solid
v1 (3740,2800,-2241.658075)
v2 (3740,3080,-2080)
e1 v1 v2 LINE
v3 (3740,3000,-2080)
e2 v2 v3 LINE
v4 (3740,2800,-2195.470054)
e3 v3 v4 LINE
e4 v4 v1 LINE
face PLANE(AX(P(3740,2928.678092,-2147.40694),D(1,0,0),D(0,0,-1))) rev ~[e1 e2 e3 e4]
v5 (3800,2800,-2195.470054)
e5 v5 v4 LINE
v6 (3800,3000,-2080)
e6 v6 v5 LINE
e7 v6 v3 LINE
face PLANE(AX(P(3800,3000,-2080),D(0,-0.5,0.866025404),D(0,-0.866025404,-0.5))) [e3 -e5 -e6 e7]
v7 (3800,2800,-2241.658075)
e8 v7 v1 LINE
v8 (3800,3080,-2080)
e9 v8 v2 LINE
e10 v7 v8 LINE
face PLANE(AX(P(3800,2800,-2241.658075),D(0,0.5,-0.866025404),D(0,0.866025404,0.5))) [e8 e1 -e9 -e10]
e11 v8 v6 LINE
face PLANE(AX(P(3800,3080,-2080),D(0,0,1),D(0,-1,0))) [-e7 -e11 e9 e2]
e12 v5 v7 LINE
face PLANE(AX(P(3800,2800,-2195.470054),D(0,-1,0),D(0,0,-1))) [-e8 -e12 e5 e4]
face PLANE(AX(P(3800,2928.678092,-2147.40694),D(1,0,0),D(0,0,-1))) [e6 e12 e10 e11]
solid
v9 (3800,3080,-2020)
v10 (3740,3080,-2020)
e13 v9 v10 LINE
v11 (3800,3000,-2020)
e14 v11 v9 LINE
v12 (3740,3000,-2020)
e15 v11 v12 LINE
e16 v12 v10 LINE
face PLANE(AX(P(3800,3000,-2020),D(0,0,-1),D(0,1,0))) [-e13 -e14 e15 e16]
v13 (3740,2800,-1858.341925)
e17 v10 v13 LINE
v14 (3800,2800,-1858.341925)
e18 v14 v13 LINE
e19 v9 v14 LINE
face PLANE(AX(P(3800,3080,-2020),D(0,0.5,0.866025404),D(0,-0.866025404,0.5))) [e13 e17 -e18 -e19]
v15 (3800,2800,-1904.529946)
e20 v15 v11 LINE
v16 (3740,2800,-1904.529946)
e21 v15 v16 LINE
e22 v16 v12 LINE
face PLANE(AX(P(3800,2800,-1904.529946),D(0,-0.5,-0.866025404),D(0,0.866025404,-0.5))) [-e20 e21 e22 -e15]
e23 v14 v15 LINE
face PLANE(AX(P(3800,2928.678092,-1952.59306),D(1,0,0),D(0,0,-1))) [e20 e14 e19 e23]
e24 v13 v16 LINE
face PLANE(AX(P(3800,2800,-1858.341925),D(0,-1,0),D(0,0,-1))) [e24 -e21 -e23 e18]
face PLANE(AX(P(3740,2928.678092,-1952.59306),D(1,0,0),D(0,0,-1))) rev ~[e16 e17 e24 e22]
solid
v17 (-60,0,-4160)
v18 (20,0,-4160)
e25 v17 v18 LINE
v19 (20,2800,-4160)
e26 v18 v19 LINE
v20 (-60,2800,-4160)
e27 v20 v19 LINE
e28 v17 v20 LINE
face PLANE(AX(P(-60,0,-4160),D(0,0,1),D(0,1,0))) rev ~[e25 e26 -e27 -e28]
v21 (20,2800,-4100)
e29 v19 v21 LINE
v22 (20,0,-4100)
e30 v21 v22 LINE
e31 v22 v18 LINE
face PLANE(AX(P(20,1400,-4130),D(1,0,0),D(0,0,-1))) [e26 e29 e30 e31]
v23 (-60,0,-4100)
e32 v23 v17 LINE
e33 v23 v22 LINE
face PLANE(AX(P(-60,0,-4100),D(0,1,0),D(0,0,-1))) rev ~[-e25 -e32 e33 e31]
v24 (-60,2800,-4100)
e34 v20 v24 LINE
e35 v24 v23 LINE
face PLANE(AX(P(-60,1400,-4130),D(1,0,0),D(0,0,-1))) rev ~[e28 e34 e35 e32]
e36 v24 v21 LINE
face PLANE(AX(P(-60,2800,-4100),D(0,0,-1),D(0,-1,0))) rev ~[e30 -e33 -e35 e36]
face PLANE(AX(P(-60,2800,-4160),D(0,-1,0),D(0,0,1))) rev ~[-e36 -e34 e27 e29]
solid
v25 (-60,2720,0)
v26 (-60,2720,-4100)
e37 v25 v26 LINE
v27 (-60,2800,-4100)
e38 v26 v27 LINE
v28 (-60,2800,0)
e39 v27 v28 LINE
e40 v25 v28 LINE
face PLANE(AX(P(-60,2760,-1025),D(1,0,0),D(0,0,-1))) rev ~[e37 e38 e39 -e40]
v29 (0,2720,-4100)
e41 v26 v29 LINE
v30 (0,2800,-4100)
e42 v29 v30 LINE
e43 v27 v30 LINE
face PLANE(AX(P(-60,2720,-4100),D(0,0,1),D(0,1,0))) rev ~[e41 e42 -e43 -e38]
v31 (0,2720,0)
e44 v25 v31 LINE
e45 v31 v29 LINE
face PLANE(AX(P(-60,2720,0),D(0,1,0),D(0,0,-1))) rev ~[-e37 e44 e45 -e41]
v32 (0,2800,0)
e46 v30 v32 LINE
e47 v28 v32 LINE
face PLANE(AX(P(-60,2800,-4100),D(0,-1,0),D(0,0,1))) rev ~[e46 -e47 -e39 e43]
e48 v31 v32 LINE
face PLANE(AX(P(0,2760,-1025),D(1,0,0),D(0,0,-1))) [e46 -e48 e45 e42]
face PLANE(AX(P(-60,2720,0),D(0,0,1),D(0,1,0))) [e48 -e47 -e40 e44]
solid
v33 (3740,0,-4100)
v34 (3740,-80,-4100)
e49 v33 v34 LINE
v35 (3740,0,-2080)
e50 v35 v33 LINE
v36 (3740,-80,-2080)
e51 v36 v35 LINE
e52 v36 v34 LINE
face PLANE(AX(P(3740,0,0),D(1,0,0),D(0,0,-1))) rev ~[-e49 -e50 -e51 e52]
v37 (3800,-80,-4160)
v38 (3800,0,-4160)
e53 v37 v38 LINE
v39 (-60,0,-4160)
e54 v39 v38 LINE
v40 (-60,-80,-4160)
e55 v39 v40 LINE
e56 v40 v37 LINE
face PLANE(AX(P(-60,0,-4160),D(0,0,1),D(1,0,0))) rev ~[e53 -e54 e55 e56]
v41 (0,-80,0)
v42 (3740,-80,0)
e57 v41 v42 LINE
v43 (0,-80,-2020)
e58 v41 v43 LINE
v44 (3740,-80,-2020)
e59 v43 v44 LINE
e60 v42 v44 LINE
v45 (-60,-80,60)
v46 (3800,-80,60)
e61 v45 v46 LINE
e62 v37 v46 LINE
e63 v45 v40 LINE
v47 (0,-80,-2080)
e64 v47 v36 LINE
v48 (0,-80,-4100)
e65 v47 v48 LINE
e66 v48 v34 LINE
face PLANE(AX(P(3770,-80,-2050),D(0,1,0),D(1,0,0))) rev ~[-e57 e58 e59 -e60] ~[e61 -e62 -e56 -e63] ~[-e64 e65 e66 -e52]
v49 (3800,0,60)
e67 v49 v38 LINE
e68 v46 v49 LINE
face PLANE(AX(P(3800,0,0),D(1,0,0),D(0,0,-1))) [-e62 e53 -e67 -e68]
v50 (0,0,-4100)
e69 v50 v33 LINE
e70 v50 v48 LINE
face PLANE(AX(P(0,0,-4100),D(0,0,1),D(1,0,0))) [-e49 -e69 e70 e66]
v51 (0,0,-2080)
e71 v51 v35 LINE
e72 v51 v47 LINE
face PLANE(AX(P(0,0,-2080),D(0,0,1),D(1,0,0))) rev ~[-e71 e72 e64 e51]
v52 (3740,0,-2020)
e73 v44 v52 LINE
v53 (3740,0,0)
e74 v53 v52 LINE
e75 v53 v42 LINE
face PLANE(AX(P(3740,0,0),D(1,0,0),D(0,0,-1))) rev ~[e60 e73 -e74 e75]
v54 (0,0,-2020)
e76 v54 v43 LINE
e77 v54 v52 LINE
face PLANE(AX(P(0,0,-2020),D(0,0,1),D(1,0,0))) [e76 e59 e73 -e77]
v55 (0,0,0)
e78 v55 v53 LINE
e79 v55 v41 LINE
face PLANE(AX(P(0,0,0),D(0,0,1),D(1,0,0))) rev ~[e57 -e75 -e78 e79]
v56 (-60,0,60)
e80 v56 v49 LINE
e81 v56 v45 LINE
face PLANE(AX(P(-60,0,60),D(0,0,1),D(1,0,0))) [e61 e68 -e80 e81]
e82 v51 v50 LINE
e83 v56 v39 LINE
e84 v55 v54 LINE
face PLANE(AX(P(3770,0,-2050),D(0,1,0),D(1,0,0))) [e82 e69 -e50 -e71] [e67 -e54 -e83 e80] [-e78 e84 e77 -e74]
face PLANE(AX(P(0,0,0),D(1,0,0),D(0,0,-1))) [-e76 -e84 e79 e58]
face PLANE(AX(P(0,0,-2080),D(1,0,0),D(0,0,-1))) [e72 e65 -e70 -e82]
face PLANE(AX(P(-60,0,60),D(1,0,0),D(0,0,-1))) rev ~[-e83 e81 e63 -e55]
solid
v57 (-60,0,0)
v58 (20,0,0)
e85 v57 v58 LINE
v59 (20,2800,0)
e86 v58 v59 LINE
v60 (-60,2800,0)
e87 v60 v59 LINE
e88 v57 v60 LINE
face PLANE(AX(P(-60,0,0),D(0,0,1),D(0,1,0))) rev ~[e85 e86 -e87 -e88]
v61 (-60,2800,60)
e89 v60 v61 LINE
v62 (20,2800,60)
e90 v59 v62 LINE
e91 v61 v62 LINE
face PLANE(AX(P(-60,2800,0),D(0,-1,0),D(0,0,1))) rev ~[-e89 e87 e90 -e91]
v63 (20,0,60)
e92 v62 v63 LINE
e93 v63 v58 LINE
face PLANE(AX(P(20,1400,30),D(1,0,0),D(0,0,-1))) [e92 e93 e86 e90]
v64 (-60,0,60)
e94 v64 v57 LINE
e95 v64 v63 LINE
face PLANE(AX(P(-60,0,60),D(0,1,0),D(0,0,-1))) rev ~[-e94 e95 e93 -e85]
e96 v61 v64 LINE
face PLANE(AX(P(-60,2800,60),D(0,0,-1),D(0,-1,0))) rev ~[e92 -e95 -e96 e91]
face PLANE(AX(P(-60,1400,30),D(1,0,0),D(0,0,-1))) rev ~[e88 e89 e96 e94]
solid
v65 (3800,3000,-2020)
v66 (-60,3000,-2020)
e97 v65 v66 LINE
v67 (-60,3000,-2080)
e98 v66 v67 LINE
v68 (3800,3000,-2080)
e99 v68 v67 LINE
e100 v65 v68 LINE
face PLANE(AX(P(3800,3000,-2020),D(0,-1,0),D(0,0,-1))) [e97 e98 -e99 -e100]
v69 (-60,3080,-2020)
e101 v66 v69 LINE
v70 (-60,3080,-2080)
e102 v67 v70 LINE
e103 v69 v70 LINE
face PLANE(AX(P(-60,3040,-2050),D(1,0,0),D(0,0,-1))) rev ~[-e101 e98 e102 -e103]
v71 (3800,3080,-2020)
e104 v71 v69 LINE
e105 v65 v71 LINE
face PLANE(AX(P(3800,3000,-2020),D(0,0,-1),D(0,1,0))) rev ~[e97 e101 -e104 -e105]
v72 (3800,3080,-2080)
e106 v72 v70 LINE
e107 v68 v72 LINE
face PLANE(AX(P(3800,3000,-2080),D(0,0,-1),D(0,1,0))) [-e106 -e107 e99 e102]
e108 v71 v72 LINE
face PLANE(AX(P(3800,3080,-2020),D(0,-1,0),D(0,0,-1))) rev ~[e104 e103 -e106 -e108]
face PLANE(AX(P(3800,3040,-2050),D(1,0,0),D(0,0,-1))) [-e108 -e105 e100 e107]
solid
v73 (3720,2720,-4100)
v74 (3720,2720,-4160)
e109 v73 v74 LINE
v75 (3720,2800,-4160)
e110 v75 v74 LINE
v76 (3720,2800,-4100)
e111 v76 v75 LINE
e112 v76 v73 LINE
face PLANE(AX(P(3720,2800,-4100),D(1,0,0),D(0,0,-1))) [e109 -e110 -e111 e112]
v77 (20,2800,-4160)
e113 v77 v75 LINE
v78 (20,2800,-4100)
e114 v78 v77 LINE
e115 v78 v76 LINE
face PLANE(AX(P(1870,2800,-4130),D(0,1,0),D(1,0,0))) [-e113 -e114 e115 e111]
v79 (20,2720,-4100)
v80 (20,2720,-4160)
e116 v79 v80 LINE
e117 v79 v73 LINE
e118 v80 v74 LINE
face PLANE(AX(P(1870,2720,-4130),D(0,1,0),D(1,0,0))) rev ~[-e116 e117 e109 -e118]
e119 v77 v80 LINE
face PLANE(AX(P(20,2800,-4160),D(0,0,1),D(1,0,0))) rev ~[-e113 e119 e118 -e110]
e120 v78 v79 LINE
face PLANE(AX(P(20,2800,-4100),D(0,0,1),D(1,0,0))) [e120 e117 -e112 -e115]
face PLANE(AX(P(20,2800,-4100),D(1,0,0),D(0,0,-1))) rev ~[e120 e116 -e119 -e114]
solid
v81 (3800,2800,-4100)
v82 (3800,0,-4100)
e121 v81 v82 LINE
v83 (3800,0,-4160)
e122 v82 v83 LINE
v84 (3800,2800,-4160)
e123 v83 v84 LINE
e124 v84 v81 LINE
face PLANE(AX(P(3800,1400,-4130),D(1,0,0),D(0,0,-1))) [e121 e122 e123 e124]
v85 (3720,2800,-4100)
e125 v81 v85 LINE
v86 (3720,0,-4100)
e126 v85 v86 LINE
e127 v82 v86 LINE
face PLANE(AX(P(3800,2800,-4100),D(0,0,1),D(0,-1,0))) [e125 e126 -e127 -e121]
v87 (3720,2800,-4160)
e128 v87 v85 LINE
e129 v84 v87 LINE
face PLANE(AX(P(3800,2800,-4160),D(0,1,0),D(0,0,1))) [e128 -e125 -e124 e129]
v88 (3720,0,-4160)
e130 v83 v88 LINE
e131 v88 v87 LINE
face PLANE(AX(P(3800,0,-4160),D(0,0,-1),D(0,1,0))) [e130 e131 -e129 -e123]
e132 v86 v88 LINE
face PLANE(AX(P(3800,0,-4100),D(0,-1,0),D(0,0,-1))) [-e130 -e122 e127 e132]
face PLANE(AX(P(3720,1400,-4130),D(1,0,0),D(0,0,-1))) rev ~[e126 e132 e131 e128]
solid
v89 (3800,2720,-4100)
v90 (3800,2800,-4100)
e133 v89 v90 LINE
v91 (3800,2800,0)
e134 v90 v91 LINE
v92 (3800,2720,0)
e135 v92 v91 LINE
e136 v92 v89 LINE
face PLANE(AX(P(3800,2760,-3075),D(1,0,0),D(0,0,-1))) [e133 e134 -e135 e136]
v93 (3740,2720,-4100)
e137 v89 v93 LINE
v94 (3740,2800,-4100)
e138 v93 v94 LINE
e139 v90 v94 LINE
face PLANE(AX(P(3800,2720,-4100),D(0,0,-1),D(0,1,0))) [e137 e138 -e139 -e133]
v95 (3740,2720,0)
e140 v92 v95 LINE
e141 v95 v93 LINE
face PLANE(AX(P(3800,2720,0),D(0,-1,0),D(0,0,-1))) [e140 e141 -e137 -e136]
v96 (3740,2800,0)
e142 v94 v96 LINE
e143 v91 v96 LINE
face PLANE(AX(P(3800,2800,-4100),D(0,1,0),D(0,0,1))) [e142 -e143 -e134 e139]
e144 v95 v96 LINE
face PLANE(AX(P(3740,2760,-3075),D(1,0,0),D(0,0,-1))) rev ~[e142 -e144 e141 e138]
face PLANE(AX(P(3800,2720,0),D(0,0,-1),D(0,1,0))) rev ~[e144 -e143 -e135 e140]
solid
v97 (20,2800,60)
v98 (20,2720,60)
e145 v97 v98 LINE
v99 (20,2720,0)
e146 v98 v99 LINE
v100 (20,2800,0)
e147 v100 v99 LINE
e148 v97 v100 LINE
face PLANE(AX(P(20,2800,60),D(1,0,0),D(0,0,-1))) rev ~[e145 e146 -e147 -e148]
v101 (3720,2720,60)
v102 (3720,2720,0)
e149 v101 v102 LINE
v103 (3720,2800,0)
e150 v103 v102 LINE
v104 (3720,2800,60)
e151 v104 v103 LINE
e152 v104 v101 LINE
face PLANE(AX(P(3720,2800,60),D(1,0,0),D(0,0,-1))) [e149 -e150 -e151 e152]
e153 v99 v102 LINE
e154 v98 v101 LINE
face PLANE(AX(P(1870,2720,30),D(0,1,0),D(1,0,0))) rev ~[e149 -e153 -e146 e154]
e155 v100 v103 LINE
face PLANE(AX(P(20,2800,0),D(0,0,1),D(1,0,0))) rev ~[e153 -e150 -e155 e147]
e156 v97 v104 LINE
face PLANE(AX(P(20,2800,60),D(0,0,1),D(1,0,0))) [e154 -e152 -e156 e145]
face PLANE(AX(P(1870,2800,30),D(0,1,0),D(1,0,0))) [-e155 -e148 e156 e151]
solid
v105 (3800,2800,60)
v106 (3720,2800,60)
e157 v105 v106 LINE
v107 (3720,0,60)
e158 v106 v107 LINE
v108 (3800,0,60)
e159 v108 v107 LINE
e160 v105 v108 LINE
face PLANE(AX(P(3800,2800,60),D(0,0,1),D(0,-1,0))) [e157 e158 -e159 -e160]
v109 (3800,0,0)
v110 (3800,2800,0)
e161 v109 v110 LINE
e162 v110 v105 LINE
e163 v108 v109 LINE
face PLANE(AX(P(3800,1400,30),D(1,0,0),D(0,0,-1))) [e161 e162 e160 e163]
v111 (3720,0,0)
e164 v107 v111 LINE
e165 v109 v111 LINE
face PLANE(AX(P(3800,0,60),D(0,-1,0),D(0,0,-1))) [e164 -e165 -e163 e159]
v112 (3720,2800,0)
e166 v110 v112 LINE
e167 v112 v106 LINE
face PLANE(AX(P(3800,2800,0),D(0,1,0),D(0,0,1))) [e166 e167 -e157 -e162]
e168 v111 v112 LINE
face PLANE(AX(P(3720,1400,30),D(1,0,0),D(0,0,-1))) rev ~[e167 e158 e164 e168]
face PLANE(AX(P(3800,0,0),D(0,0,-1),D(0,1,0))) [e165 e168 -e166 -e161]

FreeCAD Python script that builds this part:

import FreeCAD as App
import Part
import Sketcher
from FreeCAD import Vector
Q = App.Units.Quantity

doc = App.newDocument("Part")
body = doc.addObject("PartDesign::Body", "Body")

# Sketch on XZ plane
sketch1 = body.newObject("Sketcher::SketchObject", "Sketch")
sketch1.AttachmentSupport = (doc.getObject("XZ_Plane"), [""])
sketch1.MapMode = "FlatFace"
sketch1.addGeometry(Part.LineSegment(Vector(-60, -4160, 0), Vector(-60, 60, 0)), False)
sketch1.addGeometry(Part.LineSegment(Vector(-60, 60, 0), Vector(7660, 60, 0)), False)
sketch1.addGeometry(Part.LineSegment(Vector(7660, 60, 0), Vector(7660, -4160, 0)), False)
sketch1.addGeometry(Part.LineSegment(Vector(7660, -4160, 0), Vector(-60, -4160, 0)), False)
sketch1.addGeometry(Part.LineSegment(Vector(7600, 0, 0), Vector(0, 0, 0)), False)
sketch1.addGeometry(Part.LineSegment(Vector(0, 0, 0), Vector(0, -2020, 0)), False)
sketch1.addGeometry(Part.LineSegment(Vector(0, -2020, 0), Vector(7600, -2020, 0)), False)
sketch1.addGeometry(Part.LineSegment(Vector(7600, -2020, 0), Vector(7600, 0, 0)), False)
sketch1.addGeometry(Part.LineSegment(Vector(7600, -2080, 0), Vector(0, -2080, 0)), False)
sketch1.addGeometry(Part.LineSegment(Vector(0, -2080, 0), Vector(0, -4100, 0)), False)
sketch1.addGeometry(Part.LineSegment(Vector(0, -4100, 0), Vector(7600, -4100, 0)), False)
sketch1.addGeometry(Part.LineSegment(Vector(7600, -4100, 0), Vector(7600, -2080, 0)), False)
sketch1.addConstraint(Sketcher.Constraint("Coincident", 0, 2, 1, 1))
sketch1.addConstraint(Sketcher.Constraint("Coincident", 1, 2, 2, 1))
sketch1.addConstraint(Sketcher.Constraint("Coincident", 2, 2, 3, 1))
sketch1.addConstraint(Sketcher.Constraint("Coincident", 3, 2, 0, 1))
sketch1.addConstraint(Sketcher.Constraint("Coincident", 4, 2, 5, 1))
sketch1.addConstraint(Sketcher.Constraint("Coincident", 5, 2, 6, 1))
sketch1.addConstraint(Sketcher.Constraint("Coincident", 6, 2, 7, 1))
sketch1.addConstraint(Sketcher.Constraint("Coincident", 7, 2, 4, 1))
sketch1.addConstraint(Sketcher.Constraint("Coincident", 8, 2, 9, 1))
sketch1.addConstraint(Sketcher.Constraint("Coincident", 9, 2, 10, 1))
sketch1.addConstraint(Sketcher.Constraint("Coincident", 10, 2, 11, 1))
sketch1.addConstraint(Sketcher.Constraint("Coincident", 11, 2, 8, 1))
sketch1.addConstraint(Sketcher.Constraint("Vertical", 0))
sketch1.addConstraint(Sketcher.Constraint("Horizontal", 1))
sketch1.addConstraint(Sketcher.Constraint("Vertical", 2))
sketch1.addConstraint(Sketcher.Constraint("Horizontal", 3))
sketch1.addConstraint(Sketcher.Constraint("Horizontal", 4))
sketch1.addConstraint(Sketcher.Constraint("Vertical", 5))
sketch1.addConstraint(Sketcher.Constraint("Horizontal", 6))
sketch1.addConstraint(Sketcher.Constraint("Vertical", 7))
sketch1.addConstraint(Sketcher.Constraint("Horizontal", 8))
sketch1.addConstraint(Sketcher.Constraint("Vertical", 9))
sketch1.addConstraint(Sketcher.Constraint("Horizontal", 10))
sketch1.addConstraint(Sketcher.Constraint("Vertical", 11))
sketch1.addConstraint(Sketcher.Constraint("Coincident", 4, 2, -1, 1))
sketch1.addConstraint(Sketcher.Constraint("PointOnObject", 8, 2, -2))
sketch1.addConstraint(Sketcher.Constraint("Vertical", 7, 2, 10, 2))
sketch1.addConstraint(Sketcher.Constraint("Equal", 7, 9))
sketch1.addConstraint(Sketcher.Constraint("DistanceX", 1, 1, 1, 2, 7720.0))
sketch1.addConstraint(Sketcher.Constraint("DistanceX", 4, 2, 4, 1, 7600.0))
sketch1.addConstraint(Sketcher.Constraint("DistanceY", 0, 1, 0, 2, 4220.0))
sketch1.addConstraint(Sketcher.Constraint("DistanceY", 5, 2, 5, 1, 2020.0))
sketch1.addConstraint(Sketcher.Constraint("DistanceX", 0, 2, -1, 1, 60.0))
sketch1.addConstraint(Sketcher.Constraint("DistanceY", -1, 1, 0, 2, 60.0))
sketch1.addConstraint(Sketcher.Constraint("DistanceY", 8, 2, -1, 1, 2080.0))
pad1 = body.newObject("PartDesign::Pad", "Pad")
pad1.Profile = sketch1
pad1.Length = 80

# Sketch on XZ plane
sketch2 = body.newObject("Sketcher::SketchObject", "Sketch001")
sketch2.AttachmentSupport = (doc.getObject("XZ_Plane"), [""])
sketch2.MapMode = "FlatFace"
sketch2.addGeometry(Part.LineSegment(Vector(3800, -5493, 0), Vector(3800, 1015, 0)), False)
sketch2.addGeometry(Part.LineSegment(Vector(3800, 1015, 0), Vector(8468, 1015, 0)), False)
sketch2.addGeometry(Part.LineSegment(Vector(8468, 1015, 0), Vector(8468, -5493, 0)), False)
sketch2.addGeometry(Part.LineSegment(Vector(8468, -5493, 0), Vector(3800, -5493, 0)), False)
sketch2.addConstraint(Sketcher.Constraint("Coincident", 0, 2, 1, 1))
sketch2.addConstraint(Sketcher.Constraint("Coincident", 1, 2, 2, 1))
sketch2.addConstraint(Sketcher.Constraint("Coincident", 2, 2, 3, 1))
sketch2.addConstraint(Sketcher.Constraint("Coincident", 3, 2, 0, 1))
sketch2.addConstraint(Sketcher.Constraint("Vertical", 0))
sketch2.addConstraint(Sketcher.Constraint("Horizontal", 1))
sketch2.addConstraint(Sketcher.Constraint("Vertical", 2))
sketch2.addConstraint(Sketcher.Constraint("Horizontal", 3))
sketch2.addConstraint(Sketcher.Constraint("DistanceX", -1, 1, 0, 2, 3800.0))
sketch2.addConstraint(Sketcher.Constraint("DistanceX", 1, 1, 1, 2, 4667.943299))
sketch2.addConstraint(Sketcher.Constraint("DistanceY", 2, 2, -1, 1, 5493.313299))
sketch2.addConstraint(Sketcher.Constraint("DistanceY", 0, 1, 0, 2, 6508.190176))
pocket1 = body.newObject("PartDesign::Pocket", "Pocket")
pocket1.Profile = sketch2
pocket1.Type = "ThroughAll"
pocket1.Reversed = True

# Sketch on XZ plane
sketch3 = body.newObject("Sketcher::SketchObject", "Sketch002")
sketch3.AttachmentSupport = (doc.getObject("XZ_Plane"), [""])
sketch3.MapMode = "FlatFace"
sketch3.addGeometry(Part.LineSegment(Vector(3740, -4100, 0), Vector(3740, 0, 0)), False)
sketch3.addGeometry(Part.LineSegment(Vector(3740, 0, 0), Vector(3800, 0, 0)), False)
sketch3.addGeometry(Part.LineSegment(Vector(3800, 0, 0), Vector(3800, -4100, 0)), False)
sketch3.addGeometry(Part.LineSegment(Vector(3800, -4100, 0), Vector(3740, -4100, 0)), False)
sketch3.addConstraint(Sketcher.Constraint("Coincident", 0, 2, 1, 1))
sketch3.addConstraint(Sketcher.Constraint("Coincident", 1, 2, 2, 1))
sketch3.addConstraint(Sketcher.Constraint("Coincident", 2, 2, 3, 1))
sketch3.addConstraint(Sketcher.Constraint("Coincident", 3, 2, 0, 1))
sketch3.addConstraint(Sketcher.Constraint("Vertical", 0))
sketch3.addConstraint(Sketcher.Constraint("Horizontal", 1))
sketch3.addConstraint(Sketcher.Constraint("Vertical", 2))
sketch3.addConstraint(Sketcher.Constraint("Horizontal", 3))
sketch3.addConstraint(Sketcher.Constraint("PointOnObject", 0, 2, -1))
sketch3.addConstraint(Sketcher.Constraint("DistanceX", 1, 1, 1, 2, 60.0))
sketch3.addConstraint(Sketcher.Constraint("DistanceY", 0, 1, 0, 2, 4100.0))
sketch3.addConstraint(Sketcher.Constraint("DistanceX", -1, 1, 0, 2, 3740.0))
pad2 = body.newObject("PartDesign::Pad", "Pad001")
pad2.Profile = sketch3
pad2.Length = 80
body2 = doc.addObject("PartDesign::Body", "Body001")

# Sketch on YZ plane
sketch4 = body2.newObject("Sketcher::SketchObject", "Sketch003")
sketch4.AttachmentSupport = (doc.getObject("YZ_Plane001"), [""])
sketch4.MapMode = "FlatFace"
sketch4.AttachmentOffset = App.Placement(Vector(0, 0, -60), App.Rotation())
sketch4.addGeometry(Part.LineSegment(Vector(0, -4100, 0), Vector(0, -4160, 0)), False)
sketch4.addGeometry(Part.LineSegment(Vector(0, -4160, 0), Vector(2800, -4160, 0)), False)
sketch4.addGeometry(Part.LineSegment(Vector(2800, -4160, 0), Vector(2800, -4100, 0)), False)
sketch4.addGeometry(Part.LineSegment(Vector(2800, -4100, 0), Vector(0, -4100, 0)), False)
sketch4.addConstraint(Sketcher.Constraint("Coincident", 0, 2, 1, 1))
sketch4.addConstraint(Sketcher.Constraint("Coincident", 1, 2, 2, 1))
sketch4.addConstraint(Sketcher.Constraint("Coincident", 2, 2, 3, 1))
sketch4.addConstraint(Sketcher.Constraint("Coincident", 3, 2, 0, 1))
sketch4.addConstraint(Sketcher.Constraint("Vertical", 0))
sketch4.addConstraint(Sketcher.Constraint("Horizontal", 1))
sketch4.addConstraint(Sketcher.Constraint("Vertical", 2))
sketch4.addConstraint(Sketcher.Constraint("Horizontal", 3))
sketch4.addConstraint(Sketcher.Constraint("PointOnObject", 0, 2, -2))
sketch4.addConstraint(Sketcher.Constraint("DistanceX", 1, 1, 1, 2, 2800.0))
sketch4.addConstraint(Sketcher.Constraint("DistanceY", 0, 2, 0, 1, 60.0))
sketch4.addConstraint(Sketcher.Constraint("DistanceY", 0, 2, -1, 1, 4160.0))
pad3 = body2.newObject("PartDesign::Pad", "Pad002")
pad3.Profile = sketch4
pad3.Length = 80
body3 = doc.addObject("PartDesign::Body", "Body002")

# Sketch on YZ plane
sketch5 = body3.newObject("Sketcher::SketchObject", "Sketch004")
sketch5.AttachmentSupport = (doc.getObject("YZ_Plane002"), [""])
sketch5.MapMode = "FlatFace"
sketch5.AttachmentOffset = App.Placement(Vector(0, 0, -60), App.Rotation())
sketch5.addGeometry(Part.LineSegment(Vector(0, 60, 0), Vector(0, 0, 0)), False)
sketch5.addGeometry(Part.LineSegment(Vector(0, 0, 0), Vector(2800, 0, 0)), False)
sketch5.addGeometry(Part.LineSegment(Vector(2800, 0, 0), Vector(2800, 60, 0)), False)
sketch5.addGeometry(Part.LineSegment(Vector(2800, 60, 0), Vector(0, 60, 0)), False)
sketch5.addConstraint(Sketcher.Constraint("Coincident", 0, 2, 1, 1))
sketch5.addConstraint(Sketcher.Constraint("Coincident", 1, 2, 2, 1))
sketch5.addConstraint(Sketcher.Constraint("Coincident", 2, 2, 3, 1))
sketch5.addConstraint(Sketcher.Constraint("Coincident", 3, 2, 0, 1))
sketch5.addConstraint(Sketcher.Constraint("Vertical", 0))
sketch5.addConstraint(Sketcher.Constraint("Horizontal", 1))
sketch5.addConstraint(Sketcher.Constraint("Vertical", 2))
sketch5.addConstraint(Sketcher.Constraint("Horizontal", 3))
sketch5.addConstraint(Sketcher.Constraint("Coincident", 0, 2, -1, 1))
sketch5.addConstraint(Sketcher.Constraint("DistanceX", 1, 1, 1, 2, 2800.0))
sketch5.addConstraint(Sketcher.Constraint("DistanceY", 0, 2, 0, 1, 60.0))
pad4 = body3.newObject("PartDesign::Pad", "Pad003")
pad4.Profile = sketch5
pad4.Length = 80
body4 = doc.addObject("PartDesign::Body", "Body003")

# Sketch on YZ plane
sketch6 = body4.newObject("Sketcher::SketchObject", "Sketch005")
sketch6.AttachmentSupport = (doc.getObject("YZ_Plane003"), [""])
sketch6.MapMode = "FlatFace"
sketch6.AttachmentOffset = App.Placement(Vector(0, 0, -60), App.Rotation())
sketch6.addGeometry(Part.LineSegment(Vector(2800, 0, 0), Vector(2720, 0, 0)), False)
sketch6.addGeometry(Part.LineSegment(Vector(2720, 0, 0), Vector(2720, -4100, 0)), False)
sketch6.addGeometry(Part.LineSegment(Vector(2720, -4100, 0), Vector(2800, -4100, 0)), False)
sketch6.addGeometry(Part.LineSegment(Vector(2800, -4100, 0), Vector(2800, 0, 0)), False)
sketch6.addConstraint(Sketcher.Constraint("Coincident", 0, 2, 1, 1))
sketch6.addConstraint(Sketcher.Constraint("Coincident", 1, 2, 2, 1))
sketch6.addConstraint(Sketcher.Constraint("Coincident", 2, 2, 3, 1))
sketch6.addConstraint(Sketcher.Constraint("Coincident", 3, 2, 0, 1))
sketch6.addConstraint(Sketcher.Constraint("Horizontal", 0))
sketch6.addConstraint(Sketcher.Constraint("Vertical", 1))
sketch6.addConstraint(Sketcher.Constraint("Horizontal", 2))
sketch6.addConstraint(Sketcher.Constraint("Vertical", 3))
sketch6.addConstraint(Sketcher.Constraint("PointOnObject", 0, 2, -1))
sketch6.addConstraint(Sketcher.Constraint("DistanceX", 0, 2, 0, 1, 80.0))
sketch6.addConstraint(Sketcher.Constraint("DistanceY", 1, 2, 1, 1, 4100.0))
sketch6.addConstraint(Sketcher.Constraint("DistanceX", -1, 1, 0, 2, 2720.0))
pad5 = body4.newObject("PartDesign::Pad", "Pad004")
pad5.Profile = sketch6
pad5.Length = 60
body5 = doc.addObject("PartDesign::Body", "Body004")

# Sketch on YZ plane
sketch7 = body5.newObject("Sketcher::SketchObject", "Sketch006")
sketch7.AttachmentSupport = (doc.getObject("YZ_Plane004"), [""])
sketch7.MapMode = "FlatFace"
sketch7.AttachmentOffset = App.Placement(Vector(0, 0, 3800), App.Rotation())
sketch7.addGeometry(Part.LineSegment(Vector(0, -4100, 0), Vector(0, -4160, 0)), False)
sketch7.addGeometry(Part.LineSegment(Vector(0, -4160, 0), Vector(2800, -4160, 0)), False)
sketch7.addGeometry(Part.LineSegment(Vector(2800, -4160, 0), Vector(2800, -4100, 0)), False)
sketch7.addGeometry(Part.LineSegment(Vector(2800, -4100, 0), Vector(0, -4100, 0)), False)
sketch7.addConstraint(Sketcher.Constraint("Coincident", 0, 2, 1, 1))
sketch7.addConstraint(Sketcher.Constraint("Coincident", 1, 2, 2, 1))
sketch7.addConstraint(Sketcher.Constraint("Coincident", 2, 2, 3, 1))
sketch7.addConstraint(Sketcher.Constraint("Coincident", 3, 2, 0, 1))
sketch7.addConstraint(Sketcher.Constraint("Vertical", 0))
sketch7.addConstraint(Sketcher.Constraint("Horizontal", 1))
sketch7.addConstraint(Sketcher.Constraint("Vertical", 2))
sketch7.addConstraint(Sketcher.Constraint("Horizontal", 3))
sketch7.addConstraint(Sketcher.Constraint("PointOnObject", 0, 2, -2))
sketch7.addConstraint(Sketcher.Constraint("DistanceX", 1, 1, 1, 2, 2800.0))
sketch7.addConstraint(Sketcher.Constraint("DistanceY", 0, 2, 0, 1, 60.0))
sketch7.addConstraint(Sketcher.Constraint("DistanceY", 0, 2, -1, 1, 4160.0))
pad6 = body5.newObject("PartDesign::Pad", "Pad005")
pad6.Profile = sketch7
pad6.Length = 80
pad6.Reversed = True
body6 = doc.addObject("PartDesign::Body", "Body005")

# Sketch on YZ plane
sketch8 = body6.newObject("Sketcher::SketchObject", "Sketch007")
sketch8.AttachmentSupport = (doc.getObject("YZ_Plane005"), [""])
sketch8.MapMode = "FlatFace"
sketch8.AttachmentOffset = App.Placement(Vector(0, 0, 3800), App.Rotation())
sketch8.addGeometry(Part.LineSegment(Vector(0, 60, 0), Vector(0, 0, 0)), False)
sketch8.addGeometry(Part.LineSegment(Vector(0, 0, 0), Vector(2800, 0, 0)), False)
sketch8.addGeometry(Part.LineSegment(Vector(2800, 0, 0), Vector(2800, 60, 0)), False)
sketch8.addGeometry(Part.LineSegment(Vector(2800, 60, 0), Vector(0, 60, 0)), False)
sketch8.addConstraint(Sketcher.Constraint("Coincident", 0, 2, 1, 1))
sketch8.addConstraint(Sketcher.Constraint("Coincident", 1, 2, 2, 1))
sketch8.addConstraint(Sketcher.Constraint("Coincident", 2, 2, 3, 1))
sketch8.addConstraint(Sketcher.Constraint("Coincident", 3, 2, 0, 1))
sketch8.addConstraint(Sketcher.Constraint("Vertical", 0))
sketch8.addConstraint(Sketcher.Constraint("Horizontal", 1))
sketch8.addConstraint(Sketcher.Constraint("Vertical", 2))
sketch8.addConstraint(Sketcher.Constraint("Horizontal", 3))
sketch8.addConstraint(Sketcher.Constraint("Coincident", 0, 2, -1, 1))
sketch8.addConstraint(Sketcher.Constraint("DistanceX", 1, 1, 1, 2, 2800.0))
sketch8.addConstraint(Sketcher.Constraint("DistanceY", 0, 2, 0, 1, 60.0))
pad7 = body6.newObject("PartDesign::Pad", "Pad006")
pad7.Profile = sketch8
pad7.Length = 80
pad7.Reversed = True
body7 = doc.addObject("PartDesign::Body", "Body006")

# Sketch on YZ plane
sketch9 = body7.newObject("Sketcher::SketchObject", "Sketch008")
sketch9.AttachmentSupport = (doc.getObject("YZ_Plane006"), [""])
sketch9.MapMode = "FlatFace"
sketch9.AttachmentOffset = App.Placement(Vector(0, 0, 3800), App.Rotation())
sketch9.addGeometry(Part.LineSegment(Vector(2720, -4100, 0), Vector(2800, -4100, 0)), False)
sketch9.addGeometry(Part.LineSegment(Vector(2800, -4100, 0), Vector(2800, 0, 0)), False)
sketch9.addGeometry(Part.LineSegment(Vector(2800, 0, 0), Vector(2720, 0, 0)), False)
sketch9.addGeometry(Part.LineSegment(Vector(2720, 0, 0), Vector(2720, -4100, 0)), False)
sketch9.addConstraint(Sketcher.Constraint("Coincident", 0, 2, 1, 1))
sketch9.addConstraint(Sketcher.Constraint("Coincident", 1, 2, 2, 1))
sketch9.addConstraint(Sketcher.Constraint("Coincident", 2, 2, 3, 1))
sketch9.addConstraint(Sketcher.Constraint("Coincident", 3, 2, 0, 1))
sketch9.addConstraint(Sketcher.Constraint("Horizontal", 0))
sketch9.addConstraint(Sketcher.Constraint("Vertical", 1))
sketch9.addConstraint(Sketcher.Constraint("Horizontal", 2))
sketch9.addConstraint(Sketcher.Constraint("Vertical", 3))
sketch9.addConstraint(Sketcher.Constraint("PointOnObject", 1, 2, -1))
sketch9.addConstraint(Sketcher.Constraint("DistanceX", 0, 1, 0, 2, 80.0))
sketch9.addConstraint(Sketcher.Constraint("DistanceY", 1, 1, 1, 2, 4100.0))
sketch9.addConstraint(Sketcher.Constraint("DistanceX", -1, 1, 0, 2, 2800.0))
pad8 = body7.newObject("PartDesign::Pad", "Pad007")
pad8.Profile = sketch9
pad8.Length = 60
pad8.Reversed = True
body8 = doc.addObject("PartDesign::Body", "Body007")

# Sketch on XZ plane
sketch10 = body8.newObject("Sketcher::SketchObject", "Sketch009")
sketch10.AttachmentSupport = (doc.getObject("XZ_Plane007"), [""])
sketch10.MapMode = "FlatFace"
sketch10.AttachmentOffset = App.Placement(Vector(0, 0, -2800), App.Rotation())
sketch10.addGeometry(Part.LineSegment(Vector(20, -4160, 0), Vector(20, -4100, 0)), False)
sketch10.addGeometry(Part.LineSegment(Vector(20, -4100, 0), Vector(3720, -4100, 0)), False)
sketch10.addGeometry(Part.LineSegment(Vector(3720, -4100, 0), Vector(3720, -4160, 0)), False)
sketch10.addGeometry(Part.LineSegment(Vector(3720, -4160, 0), Vector(20, -4160, 0)), False)
sketch10.addConstraint(Sketcher.Constraint("Coincident", 0, 2, 1, 1))
sketch10.addConstraint(Sketcher.Constraint("Coincident", 1, 2, 2, 1))
sketch10.addConstraint(Sketcher.Constraint("Coincident", 2, 2, 3, 1))
sketch10.addConstraint(Sketcher.Constraint("Coincident", 3, 2, 0, 1))
sketch10.addConstraint(Sketcher.Constraint("Vertical", 0))
sketch10.addConstraint(Sketcher.Constraint("Horizontal", 1))
sketch10.addConstraint(Sketcher.Constraint("Vertical", 2))
sketch10.addConstraint(Sketcher.Constraint("Horizontal", 3))
sketch10.addConstraint(Sketcher.Constraint("DistanceX", 1, 1, 1, 2, 3700.0))
sketch10.addConstraint(Sketcher.Constraint("DistanceY", 0, 1, 0, 2, 60.0))
sketch10.addConstraint(Sketcher.Constraint("DistanceX", -1, 1, 0, 2, 20.0))
sketch10.addConstraint(Sketcher.Constraint("DistanceY", 0, 2, -1, 1, 4100.0))
pad9 = body8.newObject("PartDesign::Pad", "Pad008")
pad9.Profile = sketch10
pad9.Length = 80
body9 = doc.addObject("PartDesign::Body", "Body008")

# Sketch on XZ plane
sketch11 = body9.newObject("Sketcher::SketchObject", "Sketch010")
sketch11.AttachmentSupport = (doc.getObject("XZ_Plane008"), [""])
sketch11.MapMode = "FlatFace"
sketch11.AttachmentOffset = App.Placement(Vector(0, 0, -2800), App.Rotation())
sketch11.addGeometry(Part.LineSegment(Vector(20, 0, 0), Vector(20, 60, 0)), False)
sketch11.addGeometry(Part.LineSegment(Vector(20, 60, 0), Vector(3720, 60, 0)), False)
sketch11.addGeometry(Part.LineSegment(Vector(3720, 60, 0), Vector(3720, 0, 0)), False)
sketch11.addGeometry(Part.LineSegment(Vector(3720, 0, 0), Vector(20, 0, 0)), False)
sketch11.addConstraint(Sketcher.Constraint("Coincident", 0, 2, 1, 1))
sketch11.addConstraint(Sketcher.Constraint("Coincident", 1, 2, 2, 1))
sketch11.addConstraint(Sketcher.Constraint("Coincident", 2, 2, 3, 1))
sketch11.addConstraint(Sketcher.Constraint("Coincident", 3, 2, 0, 1))
sketch11.addConstraint(Sketcher.Constraint("Vertical", 0))
sketch11.addConstraint(Sketcher.Constraint("Horizontal", 1))
sketch11.addConstraint(Sketcher.Constraint("Vertical", 2))
sketch11.addConstraint(Sketcher.Constraint("Horizontal", 3))
sketch11.addConstraint(Sketcher.Constraint("PointOnObject", 2, 2, -1))
sketch11.addConstraint(Sketcher.Constraint("DistanceX", 1, 1, 1, 2, 3700.0))
sketch11.addConstraint(Sketcher.Constraint("DistanceY", 0, 1, 0, 2, 60.0))
sketch11.addConstraint(Sketcher.Constraint("DistanceX", -1, 1, 0, 2, 20.0))
pad10 = body9.newObject("PartDesign::Pad", "Pad009")
pad10.Profile = sketch11
pad10.Length = 80
body10 = doc.addObject("PartDesign::Body", "Body009")

# Sketch on YZ plane
sketch12 = body10.newObject("Sketcher::SketchObject", "Sketch011")
sketch12.AttachmentSupport = (doc.getObject("YZ_Plane009"), [""])
sketch12.MapMode = "FlatFace"
sketch12.AttachmentOffset = App.Placement(Vector(0, 0, 3800), App.Rotation())
sketch12.addGeometry(Part.LineSegment(Vector(3000, -2020, 0), Vector(3080, -2020, 0)), False)
sketch12.addGeometry(Part.LineSegment(Vector(3080, -2020, 0), Vector(2800, -1858, 0)), False)
sketch12.addGeometry(Part.LineSegment(Vector(2800, -1858, 0), Vector(2800, -1905, 0)), False)
sketch12.addGeometry(Part.LineSegment(Vector(2800, -1905, 0), Vector(3000, -2020, 0)), False)
sketch12.addConstraint(Sketcher.Constraint("Coincident", 0, 2, 1, 1))
sketch12.addConstraint(Sketcher.Constraint("Coincident", 1, 2, 2, 1))
sketch12.addConstraint(Sketcher.Constraint("Coincident", 2, 2, 3, 1))
sketch12.addConstraint(Sketcher.Constraint("Coincident", 3, 2, 0, 1))
sketch12.addConstraint(Sketcher.Constraint("Horizontal", 0))
sketch12.addConstraint(Sketcher.Constraint("Vertical", 2))
sketch12.addConstraint(Sketcher.Constraint("Parallel", 1, 3))
sketch12.addConstraint(Sketcher.Constraint("DistanceX", 0, 1, 0, 2, 80.0))
sketch12.addConstraint(Sketcher.Constraint("Angle", 1, Q("150 deg")))
sketch12.addConstraint(Sketcher.Constraint("DistanceX", -1, 1, 0, 2, 3080.0))
sketch12.addConstraint(Sketcher.Constraint("DistanceY", 0, 2, -1, 1, 2020.0))
sketch12.addConstraint(Sketcher.Constraint("DistanceX", -1, 1, 1, 2, 2800.0))
pad11 = body10.newObject("PartDesign::Pad", "Pad010")
pad11.Profile = sketch12
pad11.Length = 60
pad11.Reversed = True
body11 = doc.addObject("PartDesign::Body", "Body010")

# Sketch on YZ plane
sketch13 = body11.newObject("Sketcher::SketchObject", "Sketch012")
sketch13.AttachmentSupport = (doc.getObject("YZ_Plane010"), [""])
sketch13.MapMode = "FlatFace"
sketch13.AttachmentOffset = App.Placement(Vector(0, 0, 3800), App.Rotation())
sketch13.addGeometry(Part.LineSegment(Vector(2800, -2242, 0), Vector(3080, -2080, 0)), False)
sketch13.addGeometry(Part.LineSegment(Vector(3080, -2080, 0), Vector(3000, -2080, 0)), False)
sketch13.addGeometry(Part.LineSegment(Vector(3000, -2080, 0), Vector(2800, -2195, 0)), False)
sketch13.addGeometry(Part.LineSegment(Vector(2800, -2195, 0), Vector(2800, -2242, 0)), False)
sketch13.addConstraint(Sketcher.Constraint("Coincident", 0, 2, 1, 1))
sketch13.addConstraint(Sketcher.Constraint("Coincident", 1, 2, 2, 1))
sketch13.addConstraint(Sketcher.Constraint("Coincident", 2, 2, 3, 1))
sketch13.addConstraint(Sketcher.Constraint("Coincident", 3, 2, 0, 1))
sketch13.addConstraint(Sketcher.Constraint("Horizontal", 1))
sketch13.addConstraint(Sketcher.Constraint("Vertical", 3))
sketch13.addConstraint(Sketcher.Constraint("Parallel", 0, 2))
sketch13.addConstraint(Sketcher.Constraint("DistanceX", 1, 2, 1, 1, 80.0))
sketch13.addConstraint(Sketcher.Constraint("Angle", 0, Q("30 deg")))
sketch13.addConstraint(Sketcher.Constraint("DistanceX", -1, 1, 0, 2, 3080.0))
sketch13.addConstraint(Sketcher.Constraint("DistanceY", 0, 2, -1, 1, 2080.0))
sketch13.addConstraint(Sketcher.Constraint("DistanceX", -1, 1, 2, 2, 2800.0))
pad12 = body11.newObject("PartDesign::Pad", "Pad011")
pad12.Profile = sketch13
pad12.Length = 60
pad12.Reversed = True
body12 = doc.addObject("PartDesign::Body", "Body011")

# Sketch on YZ plane
sketch14 = body12.newObject("Sketcher::SketchObject", "Sketch013")
sketch14.AttachmentSupport = (doc.getObject("YZ_Plane011"), [""])
sketch14.MapMode = "FlatFace"
sketch14.AttachmentOffset = App.Placement(Vector(0, 0, 3800), App.Rotation())
sketch14.addGeometry(Part.LineSegment(Vector(3080, -2020, 0), Vector(3000, -2020, 0)), False)
sketch14.addGeometry(Part.LineSegment(Vector(3000, -2020, 0), Vector(3000, -2080, 0)), False)
sketch14.addGeometry(Part.LineSegment(Vector(3000, -2080, 0), Vector(3080, -2080, 0)), False)
sketch14.addGeometry(Part.LineSegment(Vector(3080, -2080, 0), Vector(3080, -2020, 0)), False)
sketch14.addConstraint(Sketcher.Constraint("Coincident", 0, 2, 1, 1))
sketch14.addConstraint(Sketcher.Constraint("Coincident", 1, 2, 2, 1))
sketch14.addConstraint(Sketcher.Constraint("Coincident", 2, 2, 3, 1))
sketch14.addConstraint(Sketcher.Constraint("Coincident", 3, 2, 0, 1))
sketch14.addConstraint(Sketcher.Constraint("Horizontal", 0))
sketch14.addConstraint(Sketcher.Constraint("Vertical", 1))
sketch14.addConstraint(Sketcher.Constraint("Horizontal", 2))
sketch14.addConstraint(Sketcher.Constraint("Vertical", 3))
sketch14.addConstraint(Sketcher.Constraint("DistanceX", 0, 2, 0, 1, 80.0))
sketch14.addConstraint(Sketcher.Constraint("DistanceY", 1, 2, 1, 1, 60.0))
sketch14.addConstraint(Sketcher.Constraint("DistanceX", -1, 1, 0, 2, 3000.0))
sketch14.addConstraint(Sketcher.Constraint("DistanceY", 0, 2, -1, 1, 2020.0))
pad13 = body12.newObject("PartDesign::Pad", "Pad012")
pad13.Profile = sketch14
pad13.Length = 3860
pad13.Reversed = True

doc.recompute()
